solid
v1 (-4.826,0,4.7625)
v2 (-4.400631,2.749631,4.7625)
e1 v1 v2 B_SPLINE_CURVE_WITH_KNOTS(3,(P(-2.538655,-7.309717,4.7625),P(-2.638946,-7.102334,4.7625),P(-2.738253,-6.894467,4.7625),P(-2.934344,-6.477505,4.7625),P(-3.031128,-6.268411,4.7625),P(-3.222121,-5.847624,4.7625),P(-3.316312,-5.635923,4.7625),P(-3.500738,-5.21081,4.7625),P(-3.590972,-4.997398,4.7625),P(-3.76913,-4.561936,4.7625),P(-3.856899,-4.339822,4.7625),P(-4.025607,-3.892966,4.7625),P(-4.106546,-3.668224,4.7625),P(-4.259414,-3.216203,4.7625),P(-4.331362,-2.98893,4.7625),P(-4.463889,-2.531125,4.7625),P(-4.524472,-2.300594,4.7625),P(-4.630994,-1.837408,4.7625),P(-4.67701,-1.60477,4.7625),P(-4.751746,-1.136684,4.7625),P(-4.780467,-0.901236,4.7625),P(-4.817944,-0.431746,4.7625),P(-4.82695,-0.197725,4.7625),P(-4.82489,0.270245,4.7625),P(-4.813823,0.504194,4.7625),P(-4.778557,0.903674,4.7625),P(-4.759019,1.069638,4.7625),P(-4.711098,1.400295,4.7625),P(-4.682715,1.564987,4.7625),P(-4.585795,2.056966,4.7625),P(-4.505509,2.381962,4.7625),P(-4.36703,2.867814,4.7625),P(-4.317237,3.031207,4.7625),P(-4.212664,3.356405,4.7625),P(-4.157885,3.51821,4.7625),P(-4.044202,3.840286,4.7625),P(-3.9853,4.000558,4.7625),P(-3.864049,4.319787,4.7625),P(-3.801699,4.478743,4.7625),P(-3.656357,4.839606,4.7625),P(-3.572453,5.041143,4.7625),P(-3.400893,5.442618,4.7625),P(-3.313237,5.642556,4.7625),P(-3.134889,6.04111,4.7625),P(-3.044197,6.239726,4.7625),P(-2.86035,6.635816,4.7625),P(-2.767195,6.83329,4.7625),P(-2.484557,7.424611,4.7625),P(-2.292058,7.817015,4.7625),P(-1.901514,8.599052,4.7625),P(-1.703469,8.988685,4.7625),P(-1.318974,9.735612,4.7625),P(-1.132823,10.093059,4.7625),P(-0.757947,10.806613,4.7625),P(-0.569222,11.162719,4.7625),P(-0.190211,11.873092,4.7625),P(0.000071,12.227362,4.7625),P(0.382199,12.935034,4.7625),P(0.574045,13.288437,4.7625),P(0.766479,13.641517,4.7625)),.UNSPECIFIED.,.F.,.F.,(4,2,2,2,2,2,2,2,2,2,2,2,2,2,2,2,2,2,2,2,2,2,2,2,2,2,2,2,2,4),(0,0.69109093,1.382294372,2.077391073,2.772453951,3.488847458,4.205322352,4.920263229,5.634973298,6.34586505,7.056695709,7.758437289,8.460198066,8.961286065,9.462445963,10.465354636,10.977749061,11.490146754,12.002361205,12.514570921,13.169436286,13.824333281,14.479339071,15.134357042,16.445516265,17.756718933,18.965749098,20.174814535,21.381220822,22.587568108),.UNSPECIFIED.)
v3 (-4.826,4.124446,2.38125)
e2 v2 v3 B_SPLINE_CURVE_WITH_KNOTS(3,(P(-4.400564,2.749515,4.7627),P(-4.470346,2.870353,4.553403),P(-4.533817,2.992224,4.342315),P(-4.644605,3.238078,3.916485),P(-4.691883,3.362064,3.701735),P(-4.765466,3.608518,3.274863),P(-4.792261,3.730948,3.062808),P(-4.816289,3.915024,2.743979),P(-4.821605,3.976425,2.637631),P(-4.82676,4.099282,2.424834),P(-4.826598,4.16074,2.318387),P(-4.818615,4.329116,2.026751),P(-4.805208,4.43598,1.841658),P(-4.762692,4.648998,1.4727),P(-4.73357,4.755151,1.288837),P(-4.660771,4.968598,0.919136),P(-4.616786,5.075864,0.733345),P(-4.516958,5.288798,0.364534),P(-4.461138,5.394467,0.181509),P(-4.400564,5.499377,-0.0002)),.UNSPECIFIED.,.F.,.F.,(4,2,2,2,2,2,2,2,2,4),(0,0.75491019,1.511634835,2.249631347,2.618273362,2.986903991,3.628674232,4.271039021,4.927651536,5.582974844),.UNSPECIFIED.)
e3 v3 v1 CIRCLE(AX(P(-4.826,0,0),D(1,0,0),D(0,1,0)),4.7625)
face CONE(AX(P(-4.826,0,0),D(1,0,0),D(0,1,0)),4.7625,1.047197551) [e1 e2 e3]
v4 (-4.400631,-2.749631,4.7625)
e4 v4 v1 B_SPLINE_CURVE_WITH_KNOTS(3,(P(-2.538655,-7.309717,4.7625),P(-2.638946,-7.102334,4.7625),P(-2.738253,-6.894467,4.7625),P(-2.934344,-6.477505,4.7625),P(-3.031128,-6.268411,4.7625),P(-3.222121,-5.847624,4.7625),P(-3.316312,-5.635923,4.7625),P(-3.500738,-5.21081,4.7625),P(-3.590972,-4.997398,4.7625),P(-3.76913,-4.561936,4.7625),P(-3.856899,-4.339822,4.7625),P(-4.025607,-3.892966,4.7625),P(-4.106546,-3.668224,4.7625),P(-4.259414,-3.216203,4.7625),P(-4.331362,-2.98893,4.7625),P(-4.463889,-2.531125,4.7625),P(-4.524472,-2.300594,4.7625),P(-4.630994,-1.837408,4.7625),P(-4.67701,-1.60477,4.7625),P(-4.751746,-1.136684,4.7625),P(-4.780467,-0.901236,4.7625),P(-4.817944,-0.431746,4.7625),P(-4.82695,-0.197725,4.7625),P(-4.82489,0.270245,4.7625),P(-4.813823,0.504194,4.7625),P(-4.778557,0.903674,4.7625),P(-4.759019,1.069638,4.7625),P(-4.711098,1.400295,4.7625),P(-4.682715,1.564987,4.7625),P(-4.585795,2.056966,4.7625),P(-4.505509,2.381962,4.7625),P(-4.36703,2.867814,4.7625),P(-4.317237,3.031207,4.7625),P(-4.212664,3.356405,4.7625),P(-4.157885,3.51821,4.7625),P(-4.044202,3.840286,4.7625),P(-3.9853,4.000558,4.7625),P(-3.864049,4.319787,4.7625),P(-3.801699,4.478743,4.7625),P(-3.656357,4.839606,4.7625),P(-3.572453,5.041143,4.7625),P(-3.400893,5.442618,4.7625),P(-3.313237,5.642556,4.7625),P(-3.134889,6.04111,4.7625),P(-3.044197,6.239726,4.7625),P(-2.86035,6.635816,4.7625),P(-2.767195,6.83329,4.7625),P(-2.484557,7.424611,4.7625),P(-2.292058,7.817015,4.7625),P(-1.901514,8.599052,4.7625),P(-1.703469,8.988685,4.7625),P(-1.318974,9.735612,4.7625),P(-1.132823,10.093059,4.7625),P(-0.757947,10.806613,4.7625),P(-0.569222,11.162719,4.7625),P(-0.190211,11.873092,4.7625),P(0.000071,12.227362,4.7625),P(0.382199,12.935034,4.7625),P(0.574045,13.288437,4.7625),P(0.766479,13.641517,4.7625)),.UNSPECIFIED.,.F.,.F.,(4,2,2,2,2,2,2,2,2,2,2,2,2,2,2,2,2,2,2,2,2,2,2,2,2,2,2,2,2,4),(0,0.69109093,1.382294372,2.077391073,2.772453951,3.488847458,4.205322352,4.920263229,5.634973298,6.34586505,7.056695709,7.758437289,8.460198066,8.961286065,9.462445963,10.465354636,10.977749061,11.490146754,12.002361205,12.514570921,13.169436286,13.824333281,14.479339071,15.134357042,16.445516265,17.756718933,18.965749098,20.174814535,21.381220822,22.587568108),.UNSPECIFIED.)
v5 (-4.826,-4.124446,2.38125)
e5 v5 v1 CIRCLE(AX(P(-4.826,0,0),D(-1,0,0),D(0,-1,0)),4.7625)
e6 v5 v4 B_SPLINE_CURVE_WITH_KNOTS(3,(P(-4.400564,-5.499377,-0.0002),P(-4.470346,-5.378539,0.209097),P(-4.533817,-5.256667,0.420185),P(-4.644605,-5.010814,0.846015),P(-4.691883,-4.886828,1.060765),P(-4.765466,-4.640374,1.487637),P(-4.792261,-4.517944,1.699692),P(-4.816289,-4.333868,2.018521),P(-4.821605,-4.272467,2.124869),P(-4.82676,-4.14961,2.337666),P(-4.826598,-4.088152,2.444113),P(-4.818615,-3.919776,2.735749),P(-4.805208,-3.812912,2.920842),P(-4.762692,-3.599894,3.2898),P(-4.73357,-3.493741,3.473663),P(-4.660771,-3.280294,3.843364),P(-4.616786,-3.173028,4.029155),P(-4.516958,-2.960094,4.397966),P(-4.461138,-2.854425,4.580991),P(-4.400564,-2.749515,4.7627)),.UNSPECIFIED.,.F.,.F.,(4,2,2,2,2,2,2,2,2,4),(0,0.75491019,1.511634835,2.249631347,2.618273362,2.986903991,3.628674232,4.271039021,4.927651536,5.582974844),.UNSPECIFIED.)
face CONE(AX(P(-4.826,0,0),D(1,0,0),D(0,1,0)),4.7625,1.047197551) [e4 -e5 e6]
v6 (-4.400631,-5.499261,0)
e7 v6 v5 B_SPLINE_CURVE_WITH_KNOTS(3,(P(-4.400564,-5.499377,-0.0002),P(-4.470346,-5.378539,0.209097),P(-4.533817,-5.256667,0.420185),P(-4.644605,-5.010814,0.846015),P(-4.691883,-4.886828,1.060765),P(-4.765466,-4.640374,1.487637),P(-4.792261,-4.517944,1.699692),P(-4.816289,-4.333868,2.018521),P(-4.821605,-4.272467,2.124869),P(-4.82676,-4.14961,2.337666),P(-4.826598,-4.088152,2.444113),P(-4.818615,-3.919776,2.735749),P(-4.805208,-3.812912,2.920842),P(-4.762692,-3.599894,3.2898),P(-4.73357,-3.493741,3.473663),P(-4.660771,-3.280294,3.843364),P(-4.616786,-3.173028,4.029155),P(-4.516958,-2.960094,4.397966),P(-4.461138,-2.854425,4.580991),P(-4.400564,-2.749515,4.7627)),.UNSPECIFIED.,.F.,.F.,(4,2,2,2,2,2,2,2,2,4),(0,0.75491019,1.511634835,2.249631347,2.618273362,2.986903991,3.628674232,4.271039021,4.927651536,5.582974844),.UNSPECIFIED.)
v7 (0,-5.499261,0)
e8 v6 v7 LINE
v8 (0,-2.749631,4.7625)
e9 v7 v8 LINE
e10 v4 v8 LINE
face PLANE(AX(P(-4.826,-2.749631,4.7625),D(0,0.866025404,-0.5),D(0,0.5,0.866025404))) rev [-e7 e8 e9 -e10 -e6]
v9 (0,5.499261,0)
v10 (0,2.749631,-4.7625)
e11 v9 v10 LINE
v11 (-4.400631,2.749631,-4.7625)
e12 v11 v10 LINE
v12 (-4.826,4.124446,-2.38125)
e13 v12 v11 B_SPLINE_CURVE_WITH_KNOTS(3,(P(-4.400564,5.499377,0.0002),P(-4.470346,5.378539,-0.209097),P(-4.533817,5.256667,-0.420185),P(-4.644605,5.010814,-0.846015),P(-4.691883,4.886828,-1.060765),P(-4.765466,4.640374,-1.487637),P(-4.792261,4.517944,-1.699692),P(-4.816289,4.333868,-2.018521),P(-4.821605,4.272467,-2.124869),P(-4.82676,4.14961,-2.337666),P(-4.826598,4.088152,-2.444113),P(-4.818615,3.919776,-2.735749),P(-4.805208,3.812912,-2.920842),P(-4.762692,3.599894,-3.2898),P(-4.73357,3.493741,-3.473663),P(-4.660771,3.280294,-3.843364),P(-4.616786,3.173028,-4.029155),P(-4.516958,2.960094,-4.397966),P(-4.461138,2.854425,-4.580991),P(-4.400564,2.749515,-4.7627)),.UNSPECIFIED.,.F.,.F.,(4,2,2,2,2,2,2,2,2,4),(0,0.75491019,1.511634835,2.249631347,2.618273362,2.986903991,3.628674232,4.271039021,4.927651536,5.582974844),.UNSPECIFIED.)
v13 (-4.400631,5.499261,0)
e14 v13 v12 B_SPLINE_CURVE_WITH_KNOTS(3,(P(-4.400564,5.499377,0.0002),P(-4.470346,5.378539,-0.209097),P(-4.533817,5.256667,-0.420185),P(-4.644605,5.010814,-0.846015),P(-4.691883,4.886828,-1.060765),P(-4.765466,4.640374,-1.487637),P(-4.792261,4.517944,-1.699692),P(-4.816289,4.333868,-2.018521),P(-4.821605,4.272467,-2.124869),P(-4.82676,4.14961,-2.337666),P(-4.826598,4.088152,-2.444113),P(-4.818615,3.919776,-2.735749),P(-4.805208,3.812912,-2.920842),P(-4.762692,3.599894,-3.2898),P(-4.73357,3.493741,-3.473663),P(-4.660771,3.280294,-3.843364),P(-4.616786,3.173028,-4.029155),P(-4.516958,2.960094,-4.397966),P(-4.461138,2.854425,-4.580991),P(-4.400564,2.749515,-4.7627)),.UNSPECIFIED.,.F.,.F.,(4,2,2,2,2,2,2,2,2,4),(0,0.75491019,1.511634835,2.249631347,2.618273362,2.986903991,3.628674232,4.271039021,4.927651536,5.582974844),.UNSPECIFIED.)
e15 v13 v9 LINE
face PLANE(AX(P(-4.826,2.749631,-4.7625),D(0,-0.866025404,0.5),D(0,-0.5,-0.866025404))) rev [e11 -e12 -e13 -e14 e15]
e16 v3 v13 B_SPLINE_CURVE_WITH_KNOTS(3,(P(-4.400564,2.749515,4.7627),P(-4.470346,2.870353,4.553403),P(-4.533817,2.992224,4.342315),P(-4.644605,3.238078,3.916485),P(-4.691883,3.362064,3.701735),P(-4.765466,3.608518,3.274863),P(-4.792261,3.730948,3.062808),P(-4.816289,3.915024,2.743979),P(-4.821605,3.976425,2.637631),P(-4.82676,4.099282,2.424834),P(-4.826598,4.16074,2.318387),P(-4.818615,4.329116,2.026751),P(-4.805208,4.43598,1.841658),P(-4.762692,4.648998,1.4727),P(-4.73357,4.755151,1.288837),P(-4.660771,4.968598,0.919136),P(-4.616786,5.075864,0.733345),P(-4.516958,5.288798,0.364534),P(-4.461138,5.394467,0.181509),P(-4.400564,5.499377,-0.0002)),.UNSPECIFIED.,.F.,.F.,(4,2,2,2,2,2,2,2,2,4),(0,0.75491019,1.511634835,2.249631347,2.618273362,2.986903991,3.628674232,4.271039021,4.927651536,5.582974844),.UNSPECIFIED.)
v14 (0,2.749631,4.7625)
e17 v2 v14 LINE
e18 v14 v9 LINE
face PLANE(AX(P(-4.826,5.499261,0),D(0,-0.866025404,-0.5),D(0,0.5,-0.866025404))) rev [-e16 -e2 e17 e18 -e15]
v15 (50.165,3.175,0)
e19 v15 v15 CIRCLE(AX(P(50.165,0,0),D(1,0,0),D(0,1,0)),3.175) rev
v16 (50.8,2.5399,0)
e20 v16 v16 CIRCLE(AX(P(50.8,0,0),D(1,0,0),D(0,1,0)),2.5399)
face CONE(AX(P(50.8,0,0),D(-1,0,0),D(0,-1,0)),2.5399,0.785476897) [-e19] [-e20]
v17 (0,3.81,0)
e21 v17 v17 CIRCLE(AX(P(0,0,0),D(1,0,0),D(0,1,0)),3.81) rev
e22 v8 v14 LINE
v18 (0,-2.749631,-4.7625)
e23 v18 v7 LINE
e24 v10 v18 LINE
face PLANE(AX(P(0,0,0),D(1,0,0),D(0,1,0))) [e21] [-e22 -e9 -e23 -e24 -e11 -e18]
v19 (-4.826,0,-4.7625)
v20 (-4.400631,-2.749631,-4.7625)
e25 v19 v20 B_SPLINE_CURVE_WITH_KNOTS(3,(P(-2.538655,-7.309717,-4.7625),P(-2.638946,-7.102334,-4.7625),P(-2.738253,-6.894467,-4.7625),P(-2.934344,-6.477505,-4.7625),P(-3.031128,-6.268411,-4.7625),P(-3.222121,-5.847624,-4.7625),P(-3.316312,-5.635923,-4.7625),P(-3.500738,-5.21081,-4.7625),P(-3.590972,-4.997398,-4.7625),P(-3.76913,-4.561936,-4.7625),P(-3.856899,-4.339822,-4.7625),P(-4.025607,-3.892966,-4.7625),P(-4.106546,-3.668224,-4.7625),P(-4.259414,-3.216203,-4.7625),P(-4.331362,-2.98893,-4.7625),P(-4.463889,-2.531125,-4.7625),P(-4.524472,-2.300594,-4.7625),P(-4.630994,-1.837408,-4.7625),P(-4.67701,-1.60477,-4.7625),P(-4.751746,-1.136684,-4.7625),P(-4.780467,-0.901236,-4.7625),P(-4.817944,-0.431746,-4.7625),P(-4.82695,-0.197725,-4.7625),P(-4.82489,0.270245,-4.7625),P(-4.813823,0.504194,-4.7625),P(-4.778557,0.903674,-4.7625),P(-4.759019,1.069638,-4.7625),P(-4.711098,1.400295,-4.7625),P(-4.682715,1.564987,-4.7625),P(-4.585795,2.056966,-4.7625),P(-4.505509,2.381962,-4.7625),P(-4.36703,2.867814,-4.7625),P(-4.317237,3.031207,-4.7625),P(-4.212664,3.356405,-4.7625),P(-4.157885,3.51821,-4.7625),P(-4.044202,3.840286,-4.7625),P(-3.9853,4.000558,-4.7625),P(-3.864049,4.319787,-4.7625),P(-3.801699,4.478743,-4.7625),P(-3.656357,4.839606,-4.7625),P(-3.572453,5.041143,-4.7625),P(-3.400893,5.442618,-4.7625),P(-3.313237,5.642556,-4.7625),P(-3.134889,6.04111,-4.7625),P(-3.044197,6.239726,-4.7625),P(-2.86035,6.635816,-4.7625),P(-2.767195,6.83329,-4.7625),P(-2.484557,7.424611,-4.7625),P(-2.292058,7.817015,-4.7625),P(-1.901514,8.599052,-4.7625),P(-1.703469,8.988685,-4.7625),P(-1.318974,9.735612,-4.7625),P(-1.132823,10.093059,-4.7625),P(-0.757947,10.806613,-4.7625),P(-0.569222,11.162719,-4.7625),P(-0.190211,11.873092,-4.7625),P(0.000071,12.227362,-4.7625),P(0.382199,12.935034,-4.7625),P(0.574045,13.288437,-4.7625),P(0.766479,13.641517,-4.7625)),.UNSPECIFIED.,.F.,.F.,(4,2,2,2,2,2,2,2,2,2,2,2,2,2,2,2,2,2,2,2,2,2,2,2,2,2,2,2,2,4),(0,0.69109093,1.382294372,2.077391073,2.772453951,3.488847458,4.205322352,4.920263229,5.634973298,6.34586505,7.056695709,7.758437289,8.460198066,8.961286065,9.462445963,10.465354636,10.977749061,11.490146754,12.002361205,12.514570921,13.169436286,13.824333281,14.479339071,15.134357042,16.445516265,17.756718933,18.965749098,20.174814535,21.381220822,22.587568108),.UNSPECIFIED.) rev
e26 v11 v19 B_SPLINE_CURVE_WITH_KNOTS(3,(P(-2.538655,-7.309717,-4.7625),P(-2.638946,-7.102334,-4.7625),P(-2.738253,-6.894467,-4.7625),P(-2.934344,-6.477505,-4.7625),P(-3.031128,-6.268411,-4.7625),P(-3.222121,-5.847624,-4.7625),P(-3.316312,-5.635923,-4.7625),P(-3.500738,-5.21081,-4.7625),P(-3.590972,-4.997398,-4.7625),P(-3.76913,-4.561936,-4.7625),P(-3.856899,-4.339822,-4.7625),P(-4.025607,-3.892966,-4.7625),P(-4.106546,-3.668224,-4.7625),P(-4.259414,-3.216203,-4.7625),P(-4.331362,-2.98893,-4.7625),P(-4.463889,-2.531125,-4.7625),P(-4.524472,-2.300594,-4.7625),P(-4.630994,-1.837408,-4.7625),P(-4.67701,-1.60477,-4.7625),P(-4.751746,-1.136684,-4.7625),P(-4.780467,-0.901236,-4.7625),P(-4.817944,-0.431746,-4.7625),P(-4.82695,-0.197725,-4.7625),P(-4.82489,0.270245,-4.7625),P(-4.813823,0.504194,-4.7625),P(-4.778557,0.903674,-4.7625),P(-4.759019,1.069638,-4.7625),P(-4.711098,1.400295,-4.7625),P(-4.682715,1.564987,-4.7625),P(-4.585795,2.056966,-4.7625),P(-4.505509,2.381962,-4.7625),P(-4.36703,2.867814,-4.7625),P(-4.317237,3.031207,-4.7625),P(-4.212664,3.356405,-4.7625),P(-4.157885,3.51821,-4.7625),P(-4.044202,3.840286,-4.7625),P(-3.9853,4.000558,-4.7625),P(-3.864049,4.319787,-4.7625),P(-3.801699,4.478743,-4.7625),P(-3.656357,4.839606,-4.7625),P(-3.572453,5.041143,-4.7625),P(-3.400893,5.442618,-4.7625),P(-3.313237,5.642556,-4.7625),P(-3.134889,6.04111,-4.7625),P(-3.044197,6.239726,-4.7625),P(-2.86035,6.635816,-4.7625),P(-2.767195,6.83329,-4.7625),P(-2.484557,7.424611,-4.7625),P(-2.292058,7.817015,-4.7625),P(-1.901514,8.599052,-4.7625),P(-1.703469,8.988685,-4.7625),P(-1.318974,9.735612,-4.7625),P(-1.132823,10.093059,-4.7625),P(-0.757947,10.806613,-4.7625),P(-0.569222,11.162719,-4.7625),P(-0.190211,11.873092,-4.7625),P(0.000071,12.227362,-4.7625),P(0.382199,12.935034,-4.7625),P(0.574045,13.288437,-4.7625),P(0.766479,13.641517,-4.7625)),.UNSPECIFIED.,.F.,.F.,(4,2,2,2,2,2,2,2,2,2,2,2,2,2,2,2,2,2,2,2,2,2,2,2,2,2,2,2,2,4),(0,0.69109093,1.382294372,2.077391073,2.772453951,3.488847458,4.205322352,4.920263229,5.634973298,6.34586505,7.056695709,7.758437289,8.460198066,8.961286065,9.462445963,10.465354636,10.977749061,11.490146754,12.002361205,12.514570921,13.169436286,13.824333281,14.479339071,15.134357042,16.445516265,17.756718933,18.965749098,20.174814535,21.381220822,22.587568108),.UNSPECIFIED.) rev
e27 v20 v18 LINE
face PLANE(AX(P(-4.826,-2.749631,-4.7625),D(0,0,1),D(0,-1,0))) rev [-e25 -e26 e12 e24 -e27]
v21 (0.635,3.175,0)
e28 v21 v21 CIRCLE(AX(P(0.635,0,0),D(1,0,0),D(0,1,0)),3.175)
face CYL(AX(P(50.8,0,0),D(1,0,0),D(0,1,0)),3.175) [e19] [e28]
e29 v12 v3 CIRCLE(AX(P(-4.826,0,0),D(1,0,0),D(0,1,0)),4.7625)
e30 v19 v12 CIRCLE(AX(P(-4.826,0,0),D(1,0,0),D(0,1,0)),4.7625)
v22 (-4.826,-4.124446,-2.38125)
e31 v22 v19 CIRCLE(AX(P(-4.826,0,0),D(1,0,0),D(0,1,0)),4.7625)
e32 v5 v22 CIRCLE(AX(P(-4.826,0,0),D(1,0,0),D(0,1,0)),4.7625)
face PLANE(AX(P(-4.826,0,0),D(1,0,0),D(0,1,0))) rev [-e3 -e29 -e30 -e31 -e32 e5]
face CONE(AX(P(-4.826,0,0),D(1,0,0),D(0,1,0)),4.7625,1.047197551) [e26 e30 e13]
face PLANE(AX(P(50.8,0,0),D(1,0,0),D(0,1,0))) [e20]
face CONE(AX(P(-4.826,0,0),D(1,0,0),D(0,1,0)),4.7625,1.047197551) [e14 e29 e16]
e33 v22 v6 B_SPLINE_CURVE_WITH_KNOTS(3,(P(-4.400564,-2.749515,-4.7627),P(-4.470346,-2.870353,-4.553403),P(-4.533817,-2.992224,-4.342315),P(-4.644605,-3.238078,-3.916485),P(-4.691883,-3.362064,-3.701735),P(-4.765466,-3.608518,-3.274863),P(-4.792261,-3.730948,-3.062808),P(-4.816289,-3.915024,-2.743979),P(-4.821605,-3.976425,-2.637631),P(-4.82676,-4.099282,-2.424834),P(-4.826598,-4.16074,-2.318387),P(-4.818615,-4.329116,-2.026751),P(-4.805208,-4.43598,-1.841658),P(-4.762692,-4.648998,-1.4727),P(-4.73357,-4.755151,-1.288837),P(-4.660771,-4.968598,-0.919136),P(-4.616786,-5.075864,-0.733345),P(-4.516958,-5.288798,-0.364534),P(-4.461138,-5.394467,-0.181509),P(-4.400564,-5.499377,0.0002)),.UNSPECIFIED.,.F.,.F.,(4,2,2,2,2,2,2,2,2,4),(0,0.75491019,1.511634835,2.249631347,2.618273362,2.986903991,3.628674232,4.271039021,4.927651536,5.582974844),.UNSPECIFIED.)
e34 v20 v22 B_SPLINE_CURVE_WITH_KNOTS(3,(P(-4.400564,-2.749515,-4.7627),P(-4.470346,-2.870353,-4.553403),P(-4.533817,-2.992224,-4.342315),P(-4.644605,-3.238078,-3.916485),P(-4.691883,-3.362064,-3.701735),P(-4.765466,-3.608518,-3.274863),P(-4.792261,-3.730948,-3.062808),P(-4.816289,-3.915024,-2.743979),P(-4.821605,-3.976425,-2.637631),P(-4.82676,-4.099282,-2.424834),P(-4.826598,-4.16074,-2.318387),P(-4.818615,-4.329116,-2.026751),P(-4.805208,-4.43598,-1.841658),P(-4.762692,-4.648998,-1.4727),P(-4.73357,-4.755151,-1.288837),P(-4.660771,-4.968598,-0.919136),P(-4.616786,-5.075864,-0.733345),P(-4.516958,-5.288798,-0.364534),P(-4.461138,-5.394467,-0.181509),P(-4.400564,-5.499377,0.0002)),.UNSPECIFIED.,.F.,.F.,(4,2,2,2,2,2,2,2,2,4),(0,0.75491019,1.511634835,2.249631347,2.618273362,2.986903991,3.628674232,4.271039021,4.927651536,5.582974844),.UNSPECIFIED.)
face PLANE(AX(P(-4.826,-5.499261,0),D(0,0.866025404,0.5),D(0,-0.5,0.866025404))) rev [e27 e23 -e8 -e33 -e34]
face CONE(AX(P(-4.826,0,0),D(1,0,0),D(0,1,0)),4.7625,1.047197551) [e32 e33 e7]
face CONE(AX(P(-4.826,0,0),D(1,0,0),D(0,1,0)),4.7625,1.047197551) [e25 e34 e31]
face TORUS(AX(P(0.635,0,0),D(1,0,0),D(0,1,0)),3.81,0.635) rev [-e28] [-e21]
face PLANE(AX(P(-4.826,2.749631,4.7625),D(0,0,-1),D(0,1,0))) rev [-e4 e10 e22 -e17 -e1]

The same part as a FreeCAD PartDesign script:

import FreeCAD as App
import Part
import Sketcher
from FreeCAD import Vector
Q = App.Units.Quantity


def edges_at(feature, points):
    """Names of the edges that pass closest to the given points."""
    edges = feature.Shape.Edges
    near = lambda p: min(range(len(edges)), key=lambda i: edges[i].distToShape(Part.Vertex(*p))[0])
    return sorted({f"Edge{near(p) + 1}" for p in points})

doc = App.newDocument("Part")
body = doc.addObject("PartDesign::Body", "Body")

# Sketch on XY plane
sketch1 = body.newObject("Sketcher::SketchObject", "Sketch")
sketch1.AttachmentSupport = (doc.getObject("XY_Plane"), [""])
sketch1.MapMode = "FlatFace"
sketch1.addGeometry([
    Part.LineSegment(Vector(0, 3.2, 0), Vector(0, 0, 0)),
    Part.LineSegment(Vector(0, 0, 0), Vector(50.8, 0, 0)),
    Part.LineSegment(Vector(50.8, 0, 0), Vector(50.8, 3.2, 0)),
    Part.LineSegment(Vector(50.8, 3.2, 0), Vector(0, 3.2, 0)),
], False)
sketch1.addConstraint([
    Sketcher.Constraint("Coincident", 0, 2, 1, 1),
    Sketcher.Constraint("Coincident", 1, 2, 2, 1),
    Sketcher.Constraint("Coincident", 2, 2, 3, 1),
    Sketcher.Constraint("Coincident", 3, 2, 0, 1),
    Sketcher.Constraint("Vertical", 0),
    Sketcher.Constraint("Horizontal", 1),
    Sketcher.Constraint("Vertical", 2),
    Sketcher.Constraint("Horizontal", 3),
    Sketcher.Constraint("Coincident", 0, 2, -1, 1),
    Sketcher.Constraint("DistanceX", 1, 1, 1, 2, Q("2 in")),
    Sketcher.Constraint("DistanceY", 0, 2, 0, 1, Q("0.125 in")),
])
revolution = body.newObject("PartDesign::Revolution", "Revolution")
revolution.Profile = sketch1
revolution.ReferenceAxis = (sketch1, ["H_Axis"])
revolution.Angle = 360

# Sketch on YZ plane
sketch2 = body.newObject("Sketcher::SketchObject", "Sketch001")
sketch2.AttachmentSupport = (doc.getObject("YZ_Plane"), [""])
sketch2.MapMode = "FlatFace"
sketch2.addGeometry([
    Part.LineSegment(Vector(3, 5, 0), Vector(5, 0, 0)),  # 0
    Part.LineSegment(Vector(5, 0, 0), Vector(3, -5, 0)),  # 1
    Part.LineSegment(Vector(3, -5, 0), Vector(-3, -5, 0)),  # 2
    Part.LineSegment(Vector(-3, -5, 0), Vector(-5, 0, 0)),  # 3
    Part.LineSegment(Vector(-5, 0, 0), Vector(-3, 5, 0)),  # 4
    Part.LineSegment(Vector(-3, 5, 0), Vector(3, 5, 0)),  # 5
], False)
sketch2.addConstraint([
    Sketcher.Constraint("Coincident", 0, 2, 1, 1),
    Sketcher.Constraint("Coincident", 1, 2, 2, 1),
    Sketcher.Constraint("Coincident", 2, 2, 3, 1),
    Sketcher.Constraint("Coincident", 3, 2, 4, 1),
    Sketcher.Constraint("Coincident", 4, 2, 5, 1),
    Sketcher.Constraint("Coincident", 5, 2, 0, 1),
    Sketcher.Constraint("Horizontal", 2),
    Sketcher.Constraint("Horizontal", 5),
    Sketcher.Constraint("Symmetric", 0, 2, 3, 2, -1, 1),
    Sketcher.Constraint("Symmetric", 1, 2, 4, 2, -1, 1),
    Sketcher.Constraint("PointOnObject", 0, 2, -1),
    Sketcher.Constraint("Parallel", 0, 3),
    Sketcher.Constraint("Vertical", 2, 2, 4, 2),
    Sketcher.Constraint("Angle", 0, Q("-60 deg")),
    Sketcher.Constraint("DistanceY", 1, 2, -1, 1, Q("0.1875 in")),
    Sketcher.Constraint("DistanceX", 2, 2, 2, 1, 5.499261),
])
pad1 = body.newObject("PartDesign::Pad", "Pad")
pad1.Profile = sketch2
pad1.Length = Q("0.19 in")
pad1.Reversed = True

# Sketch on XY plane
sketch3 = body.newObject("Sketcher::SketchObject", "Sketch002")
sketch3.AttachmentSupport = (doc.getObject("XY_Plane"), [""])
sketch3.MapMode = "FlatFace"
sketch3.addGeometry([
    Part.LineSegment(Vector(-4.8, 4.8, 0), Vector(-4.3, 5.7, 0)),
    Part.LineSegment(Vector(-4.3, 5.7, 0), Vector(-4.8, 5.7, 0)),
    Part.LineSegment(Vector(-4.8, 5.7, 0), Vector(-4.8, 4.8, 0)),
], False)
sketch3.addConstraint([
    Sketcher.Constraint("Coincident", 0, 2, 1, 1),
    Sketcher.Constraint("Coincident", 1, 2, 2, 1),
    Sketcher.Constraint("Coincident", 2, 2, 0, 1),
    Sketcher.Constraint("Horizontal", 1),
    Sketcher.Constraint("Vertical", 2),
    Sketcher.Constraint("Angle", 0, Q("60 deg")),
    Sketcher.Constraint("DistanceX", 1, 2, -1, 1, Q("0.19 in")),
    Sketcher.Constraint("DistanceY", 2, 2, 2, 1, Q("0.0375 in")),
    Sketcher.Constraint("DistanceY", -1, 1, 0, 2, Q("0.225 in")),
])
groove = body.newObject("PartDesign::Groove", "Groove")
groove.Profile = sketch3
groove.ReferenceAxis = (sketch3, ["H_Axis"])
groove.Angle = 360
doc.recompute()

chamfer = body.newObject("PartDesign::Chamfer", "Chamfer")
chamfer.Base = (groove, edges_at(groove, [(50.8, -3.175, 0)]))
chamfer.ChamferType = "Two distances"
chamfer.Size = Q("0.025 in")
chamfer.Size2 = 0.6351
doc.recompute()

fillet = body.newObject("PartDesign::Fillet", "Fillet")
fillet.Base = (chamfer, edges_at(chamfer, [(0, -3.175, 0)]))
fillet.Radius = Q("0.025 in")

doc.recompute()
